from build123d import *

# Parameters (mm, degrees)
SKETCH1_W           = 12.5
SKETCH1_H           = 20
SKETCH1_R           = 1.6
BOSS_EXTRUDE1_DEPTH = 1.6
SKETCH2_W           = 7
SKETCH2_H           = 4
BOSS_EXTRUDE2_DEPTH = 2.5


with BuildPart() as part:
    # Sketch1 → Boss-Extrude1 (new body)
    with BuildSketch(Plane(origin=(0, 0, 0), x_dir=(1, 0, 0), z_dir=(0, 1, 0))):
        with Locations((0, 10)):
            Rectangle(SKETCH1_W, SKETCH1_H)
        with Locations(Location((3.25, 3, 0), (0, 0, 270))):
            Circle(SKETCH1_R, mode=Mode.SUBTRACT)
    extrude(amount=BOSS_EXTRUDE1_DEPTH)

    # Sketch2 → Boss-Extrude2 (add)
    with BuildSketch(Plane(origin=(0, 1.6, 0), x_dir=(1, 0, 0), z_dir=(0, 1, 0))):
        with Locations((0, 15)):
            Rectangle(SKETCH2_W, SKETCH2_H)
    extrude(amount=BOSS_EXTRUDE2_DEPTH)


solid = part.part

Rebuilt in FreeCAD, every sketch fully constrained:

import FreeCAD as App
import Part
import Sketcher

doc = App.newDocument("Part")
body = doc.addObject("PartDesign::Body", "Body")

sketch1 = doc.addObject("Sketcher::SketchObject", "Sketch")
body.addObject(sketch1)
sketch1.AttachmentSupport = (doc.XZ_Plane, [""])
sketch1.MapMode = "FlatFace"
sketch1.addGeometry([
    Part.LineSegment(App.Vector(-6.2, -20, 0), App.Vector(-6.2, 0, 0)),
    Part.LineSegment(App.Vector(-6.2, 0, 0), App.Vector(6.2, 0, 0)),
    Part.LineSegment(App.Vector(6.2, 0, 0), App.Vector(6.2, -20, 0)),
    Part.LineSegment(App.Vector(6.2, -20, 0), App.Vector(-6.2, -20, 0)),
    Part.Circle(App.Vector(3.2, -3, 0), App.Vector(0, 0, 1), 1.6),
], False)
sketch1.addConstraint([
    Sketcher.Constraint("Coincident", 0, 2, 1, 1),
    Sketcher.Constraint("Coincident", 1, 2, 2, 1),
    Sketcher.Constraint("Coincident", 2, 2, 3, 1),
    Sketcher.Constraint("Coincident", 3, 2, 0, 1),
    Sketcher.Constraint("Vertical", 0),
    Sketcher.Constraint("Horizontal", 1),
    Sketcher.Constraint("Vertical", 2),
    Sketcher.Constraint("Horizontal", 3),
    Sketcher.Constraint("Symmetric", 0, 2, 1, 2, -1, 1),
    Sketcher.Constraint("Diameter", 4, 3.2),
    Sketcher.Constraint("DistanceY", 0, 1, 0, 2, 20.0),
    Sketcher.Constraint("DistanceX", 1, 1, 1, 2, 12.5),
    Sketcher.Constraint("DistanceY", 4, 3, -1, 1, 3.0),
    Sketcher.Constraint("DistanceX", 4, 3, 1, 2, 3.0),
])
pad1 = doc.addObject("PartDesign::Pad", "Pad")
body.addObject(pad1)
pad1.Profile = sketch1
pad1.Length = 1.6
pad1.Reversed = True

sketch2 = doc.addObject("Sketcher::SketchObject", "Sketch001")
body.addObject(sketch2)
sketch2.AttachmentSupport = (doc.XZ_Plane, [""])
sketch2.MapMode = "FlatFace"
sketch2.AttachmentOffset = App.Placement(App.Vector(0, 0, -1.6), App.Rotation())
sketch2.addGeometry([
    Part.LineSegment(App.Vector(-3.5, -17, 0), App.Vector(-3.5, -13, 0)),
    Part.LineSegment(App.Vector(-3.5, -13, 0), App.Vector(3.5, -13, 0)),
    Part.LineSegment(App.Vector(3.5, -13, 0), App.Vector(3.5, -17, 0)),
    Part.LineSegment(App.Vector(3.5, -17, 0), App.Vector(-3.5, -17, 0)),
], False)
sketch2.addConstraint([
    Sketcher.Constraint("Coincident", 0, 2, 1, 1),
    Sketcher.Constraint("Coincident", 1, 2, 2, 1),
    Sketcher.Constraint("Coincident", 2, 2, 3, 1),
    Sketcher.Constraint("Coincident", 3, 2, 0, 1),
    Sketcher.Constraint("Vertical", 0),
    Sketcher.Constraint("Horizontal", 1),
    Sketcher.Constraint("Vertical", 2),
    Sketcher.Constraint("Horizontal", 3),
    Sketcher.Constraint("DistanceX", 1, 1, 1, 2, 7.0),
    Sketcher.Constraint("DistanceY", 0, 1, 0, 2, 4.0),
    Sketcher.Constraint("DistanceY", 0, 2, -1, 1, 13.0),
    Sketcher.Constraint("DistanceX", 0, 2, -1, 1, 3.5),
])
pad2 = doc.addObject("PartDesign::Pad", "Pad001")
body.addObject(pad2)
pad2.Profile = sketch2
pad2.Length = 2.5
pad2.Reversed = True

doc.recompute()
